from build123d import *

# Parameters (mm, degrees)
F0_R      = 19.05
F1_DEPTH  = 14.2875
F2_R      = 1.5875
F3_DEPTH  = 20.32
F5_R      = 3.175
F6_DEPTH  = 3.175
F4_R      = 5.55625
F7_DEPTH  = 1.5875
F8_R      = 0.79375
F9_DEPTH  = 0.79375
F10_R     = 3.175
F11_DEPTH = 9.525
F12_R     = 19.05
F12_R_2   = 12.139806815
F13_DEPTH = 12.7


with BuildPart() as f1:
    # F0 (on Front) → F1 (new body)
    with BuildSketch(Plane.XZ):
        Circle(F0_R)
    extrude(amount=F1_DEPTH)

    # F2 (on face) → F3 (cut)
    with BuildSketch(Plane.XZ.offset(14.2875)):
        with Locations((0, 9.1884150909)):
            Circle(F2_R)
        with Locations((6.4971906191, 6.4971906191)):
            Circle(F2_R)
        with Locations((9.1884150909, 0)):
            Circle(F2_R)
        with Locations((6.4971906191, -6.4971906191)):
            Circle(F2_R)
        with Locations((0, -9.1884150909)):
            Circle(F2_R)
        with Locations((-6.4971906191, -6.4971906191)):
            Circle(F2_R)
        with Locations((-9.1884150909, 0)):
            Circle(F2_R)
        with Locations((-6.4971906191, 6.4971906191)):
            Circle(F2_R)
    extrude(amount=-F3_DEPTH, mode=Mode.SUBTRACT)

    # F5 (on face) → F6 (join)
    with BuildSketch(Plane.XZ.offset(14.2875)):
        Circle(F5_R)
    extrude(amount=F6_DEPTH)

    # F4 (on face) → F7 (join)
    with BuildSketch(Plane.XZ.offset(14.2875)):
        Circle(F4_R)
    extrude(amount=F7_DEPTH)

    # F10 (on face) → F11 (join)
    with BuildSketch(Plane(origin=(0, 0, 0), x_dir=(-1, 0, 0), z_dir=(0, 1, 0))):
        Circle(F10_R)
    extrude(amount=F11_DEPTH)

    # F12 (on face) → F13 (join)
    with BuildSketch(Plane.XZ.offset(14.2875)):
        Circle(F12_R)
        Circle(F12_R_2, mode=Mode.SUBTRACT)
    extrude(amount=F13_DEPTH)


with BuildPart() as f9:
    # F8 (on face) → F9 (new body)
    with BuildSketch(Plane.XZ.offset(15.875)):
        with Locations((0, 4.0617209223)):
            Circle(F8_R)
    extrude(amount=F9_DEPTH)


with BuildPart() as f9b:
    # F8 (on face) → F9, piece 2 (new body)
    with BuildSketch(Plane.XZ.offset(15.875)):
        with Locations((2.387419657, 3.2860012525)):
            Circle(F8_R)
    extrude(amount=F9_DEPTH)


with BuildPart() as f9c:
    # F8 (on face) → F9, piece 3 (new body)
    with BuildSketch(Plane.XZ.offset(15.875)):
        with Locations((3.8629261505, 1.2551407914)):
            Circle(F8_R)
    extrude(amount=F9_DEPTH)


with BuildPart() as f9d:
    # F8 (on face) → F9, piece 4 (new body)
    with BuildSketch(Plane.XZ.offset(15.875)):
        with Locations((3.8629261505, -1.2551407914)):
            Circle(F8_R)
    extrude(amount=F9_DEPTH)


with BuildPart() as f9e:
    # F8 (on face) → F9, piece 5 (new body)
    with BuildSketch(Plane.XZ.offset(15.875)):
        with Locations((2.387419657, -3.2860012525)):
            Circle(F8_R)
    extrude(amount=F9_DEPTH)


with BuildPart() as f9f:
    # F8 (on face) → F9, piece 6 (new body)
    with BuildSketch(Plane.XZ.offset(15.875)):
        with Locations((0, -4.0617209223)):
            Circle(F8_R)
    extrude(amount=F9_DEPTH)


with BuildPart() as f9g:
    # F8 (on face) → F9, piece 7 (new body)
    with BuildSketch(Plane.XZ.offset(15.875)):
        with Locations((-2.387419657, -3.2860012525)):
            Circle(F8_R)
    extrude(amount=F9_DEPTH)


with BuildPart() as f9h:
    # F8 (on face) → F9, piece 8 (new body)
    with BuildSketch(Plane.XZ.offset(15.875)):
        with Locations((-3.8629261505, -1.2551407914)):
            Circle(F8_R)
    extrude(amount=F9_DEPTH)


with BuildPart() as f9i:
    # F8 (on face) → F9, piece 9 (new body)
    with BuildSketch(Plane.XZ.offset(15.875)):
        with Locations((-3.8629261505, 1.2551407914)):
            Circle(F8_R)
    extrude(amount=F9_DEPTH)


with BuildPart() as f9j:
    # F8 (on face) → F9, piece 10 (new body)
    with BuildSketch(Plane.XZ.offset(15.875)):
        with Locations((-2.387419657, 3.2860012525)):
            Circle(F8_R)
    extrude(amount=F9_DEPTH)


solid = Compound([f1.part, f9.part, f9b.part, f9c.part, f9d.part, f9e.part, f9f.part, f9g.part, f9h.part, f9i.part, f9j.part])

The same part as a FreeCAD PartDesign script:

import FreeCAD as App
import Part
import Sketcher

V = App.Vector
Q = App.Units.Quantity

doc = App.newDocument("Part")
body = doc.addObject("PartDesign::Body", "Body")

# Sketch on XZ plane
sketch1 = body.newObject("Sketcher::SketchObject", "Sketch")
sketch1.AttachmentSupport = (doc.getObject("XZ_Plane"), [""])
sketch1.MapMode = "FlatFace"
sketch1.addGeometry(Part.Circle(V(0, 0, 0), V(0, 0, 1), 19), False)
sketch1.addConstraint([
    Sketcher.Constraint("Coincident", 0, 3, -1, 1),
    Sketcher.Constraint("Diameter", 0, Q("1.5 in")),
])
pad1 = body.newObject("PartDesign::Pad", "Pad")
pad1.Profile = sketch1
pad1.Length = Q("0.5625 in")

# Sketch on XZ plane
sketch2 = body.newObject("Sketcher::SketchObject", "Sketch001")
sketch2.AttachmentSupport = (doc.getObject("XZ_Plane"), [""])
sketch2.MapMode = "FlatFace"
sketch2.AttachmentOffset = App.Placement(V(0, 0, 0.5625 * 25.4), App.Rotation())
sketch2.addGeometry([
    Part.Circle(V(0, 9.2, 0), V(0, 0, 1), 1.6),  # 0
    Part.Circle(V(6.5, 6.5, 0), V(0, 0, 1), 1.6),  # 1
    Part.Circle(V(9.2, 0, 0), V(0, 0, 1), 1.6),  # 2
    Part.Circle(V(6.5, -6.5, 0), V(0, 0, 1), 1.6),  # 3
    Part.Circle(V(0, -9.2, 0), V(0, 0, 1), 1.6),  # 4
    Part.Circle(V(-6.5, -6.5, 0), V(0, 0, 1), 1.6),  # 5
    Part.Circle(V(-9.2, 0, 0), V(0, 0, 1), 1.6),  # 6
    Part.Circle(V(-6.5, 6.5, 0), V(0, 0, 1), 1.6),  # 7
], False)
sketch2.addConstraint([
    Sketcher.Constraint("Equal", 0, 1),
    Sketcher.Constraint("Equal", 1, 2),
    Sketcher.Constraint("Equal", 2, 3),
    Sketcher.Constraint("Equal", 3, 4),
    Sketcher.Constraint("Equal", 4, 5),
    Sketcher.Constraint("Equal", 5, 6),
    Sketcher.Constraint("Equal", 6, 7),
    Sketcher.Constraint("Symmetric", 0, 3, 4, 3, -1, 1),
    Sketcher.Constraint("Symmetric", 1, 3, 5, 3, -1, 1),
    Sketcher.Constraint("Symmetric", 2, 3, 6, 3, -1, 1),
    Sketcher.Constraint("Symmetric", 3, 3, 7, 3, -1, 1),
    Sketcher.Constraint("Symmetric", 3, 3, 5, 3, -2),
    Sketcher.Constraint("PointOnObject", 0, 3, -2),
    Sketcher.Constraint("PointOnObject", 2, 3, -1),
    Sketcher.Constraint("Diameter", 0, Q("0.125 in")),
    Sketcher.Constraint("DistanceX", -1, 1, 1, 3, Q("6.497191 mm")),
    Sketcher.Constraint("DistanceY", -1, 1, 1, 3, Q("6.497191 mm")),
    Sketcher.Constraint("DistanceY", 4, 3, 0, 3, Q("18.37683 mm")),
    Sketcher.Constraint("DistanceX", -1, 1, 2, 3, Q("9.188415 mm")),
])
pocket1 = body.newObject("PartDesign::Pocket", "Pocket")
pocket1.Profile = sketch2
pocket1.Length = Q("0.8 in")

# Sketch on XZ plane
sketch3 = body.newObject("Sketcher::SketchObject", "Sketch002")
sketch3.AttachmentSupport = (doc.getObject("XZ_Plane"), [""])
sketch3.MapMode = "FlatFace"
sketch3.AttachmentOffset = App.Placement(V(0, 0, 0.5625 * 25.4), App.Rotation())
sketch3.addGeometry(Part.Circle(V(0, 0, 0), V(0, 0, 1), 3.2), False)
sketch3.addConstraint([
    Sketcher.Constraint("Coincident", 0, 3, -1, 1),
    Sketcher.Constraint("Diameter", 0, Q("0.25 in")),
])
pad2 = body.newObject("PartDesign::Pad", "Pad001")
pad2.Profile = sketch3
pad2.Length = Q("0.125 in")

# Sketch on XZ plane
sketch4 = body.newObject("Sketcher::SketchObject", "Sketch003")
sketch4.AttachmentSupport = (doc.getObject("XZ_Plane"), [""])
sketch4.MapMode = "FlatFace"
sketch4.AttachmentOffset = App.Placement(V(0, 0, 0.5625 * 25.4), App.Rotation())
sketch4.addGeometry(Part.Circle(V(0, 0, 0), V(0, 0, 1), 6), False)
sketch4.addConstraint([
    Sketcher.Constraint("Coincident", 0, 3, -1, 1),
    Sketcher.Constraint("Diameter", 0, Q("0.4375 in")),
])
pad3 = body.newObject("PartDesign::Pad", "Pad002")
pad3.Profile = sketch4
pad3.Length = Q("0.0625 in")

# Sketch on XZ plane
sketch5 = body.newObject("Sketcher::SketchObject", "Sketch004")
sketch5.AttachmentSupport = (doc.getObject("XZ_Plane"), [""])
sketch5.MapMode = "FlatFace"
sketch5.addGeometry(Part.Circle(V(0, 0, 0), V(0, 0, 1), 3.2), False)
sketch5.addConstraint([
    Sketcher.Constraint("Coincident", 0, 3, -1, 1),
    Sketcher.Constraint("Diameter", 0, Q("0.25 in")),
])
pad4 = body.newObject("PartDesign::Pad", "Pad003")
pad4.Profile = sketch5
pad4.Length = Q("0.375 in")
pad4.Reversed = True

# Sketch on XZ plane
sketch6 = body.newObject("Sketcher::SketchObject", "Sketch005")
sketch6.AttachmentSupport = (doc.getObject("XZ_Plane"), [""])
sketch6.MapMode = "FlatFace"
sketch6.AttachmentOffset = App.Placement(V(0, 0, 0.5625 * 25.4), App.Rotation())
sketch6.addGeometry([
    Part.Circle(V(0, 0, 0), V(0, 0, 1), 19),
    Part.Circle(V(0, 0, 0), V(0, 0, 1), 12),
], False)
sketch6.addConstraint([
    Sketcher.Constraint("Coincident", 0, 3, -1, 1),
    Sketcher.Constraint("Coincident", 1, 3, -1, 1),
    Sketcher.Constraint("Diameter", 0, Q("1.5 in")),
    Sketcher.Constraint("Diameter", 1, Q("24.279614 mm")),
])
pad5 = body.newObject("PartDesign::Pad", "Pad004")
pad5.Profile = sketch6
pad5.Length = Q("0.5 in")
body2 = doc.addObject("PartDesign::Body", "Body001")

# Sketch on XZ plane
sketch7 = body2.newObject("Sketcher::SketchObject", "Sketch006")
sketch7.AttachmentSupport = (doc.getObject("XZ_Plane001"), [""])
sketch7.MapMode = "FlatFace"
sketch7.AttachmentOffset = App.Placement(V(0, 0, 0.625 * 25.4), App.Rotation())
sketch7.addGeometry(Part.Circle(V(0, 4.1, 0), V(0, 0, 1), 0.8), False)
sketch7.addConstraint([
    Sketcher.Constraint("PointOnObject", 0, 3, -2),
    Sketcher.Constraint("Diameter", 0, Q("0.0625 in")),
    Sketcher.Constraint("DistanceY", -1, 1, 0, 3, Q("4.061721 mm")),
])
pad6 = body2.newObject("PartDesign::Pad", "Pad005")
pad6.Profile = sketch7
pad6.Length = Q("0.03125 in")
body3 = doc.addObject("PartDesign::Body", "Body002")

# Sketch on XZ plane
sketch8 = body3.newObject("Sketcher::SketchObject", "Sketch007")
sketch8.AttachmentSupport = (doc.getObject("XZ_Plane002"), [""])
sketch8.MapMode = "FlatFace"
sketch8.AttachmentOffset = App.Placement(V(0, 0, 0.625 * 25.4), App.Rotation())
sketch8.addGeometry(Part.Circle(V(2.4, 3.3, 0), V(0, 0, 1), 0.8), False)
sketch8.addConstraint([
    Sketcher.Constraint("Diameter", 0, Q("0.0625 in")),
    Sketcher.Constraint("DistanceY", -1, 1, 0, 3, Q("3.286001 mm")),
    Sketcher.Constraint("DistanceX", -1, 1, 0, 3, Q("2.38742 mm")),
])
pad7 = body3.newObject("PartDesign::Pad", "Pad006")
pad7.Profile = sketch8
pad7.Length = Q("0.03125 in")
body4 = doc.addObject("PartDesign::Body", "Body003")

# Sketch on XZ plane
sketch9 = body4.newObject("Sketcher::SketchObject", "Sketch008")
sketch9.AttachmentSupport = (doc.getObject("XZ_Plane003"), [""])
sketch9.MapMode = "FlatFace"
sketch9.AttachmentOffset = App.Placement(V(0, 0, 0.625 * 25.4), App.Rotation())
sketch9.addGeometry(Part.Circle(V(3.9, 1.3, 0), V(0, 0, 1), 0.8), False)
sketch9.addConstraint([
    Sketcher.Constraint("Diameter", 0, Q("0.0625 in")),
    Sketcher.Constraint("DistanceY", -1, 1, 0, 3, Q("1.255141 mm")),
    Sketcher.Constraint("DistanceX", -1, 1, 0, 3, Q("3.862926 mm")),
])
pad8 = body4.newObject("PartDesign::Pad", "Pad007")
pad8.Profile = sketch9
pad8.Length = Q("0.03125 in")
body5 = doc.addObject("PartDesign::Body", "Body004")

# Sketch on XZ plane
sketch10 = body5.newObject("Sketcher::SketchObject", "Sketch009")
sketch10.AttachmentSupport = (doc.getObject("XZ_Plane004"), [""])
sketch10.MapMode = "FlatFace"
sketch10.AttachmentOffset = App.Placement(V(0, 0, 0.625 * 25.4), App.Rotation())
sketch10.addGeometry(Part.Circle(V(3.9, -1.3, 0), V(0, 0, 1), 0.8), False)
sketch10.addConstraint([
    Sketcher.Constraint("Diameter", 0, Q("0.0625 in")),
    Sketcher.Constraint("DistanceY", 0, 3, -1, 1, Q("1.255141 mm")),
    Sketcher.Constraint("DistanceX", -1, 1, 0, 3, Q("3.862926 mm")),
])
pad9 = body5.newObject("PartDesign::Pad", "Pad008")
pad9.Profile = sketch10
pad9.Length = Q("0.03125 in")
body6 = doc.addObject("PartDesign::Body", "Body005")

# Sketch on XZ plane
sketch11 = body6.newObject("Sketcher::SketchObject", "Sketch010")
sketch11.AttachmentSupport = (doc.getObject("XZ_Plane005"), [""])
sketch11.MapMode = "FlatFace"
sketch11.AttachmentOffset = App.Placement(V(0, 0, 0.625 * 25.4), App.Rotation())
sketch11.addGeometry(Part.Circle(V(2.4, -3.3, 0), V(0, 0, 1), 0.8), False)
sketch11.addConstraint([
    Sketcher.Constraint("Diameter", 0, Q("0.0625 in")),
    Sketcher.Constraint("DistanceY", 0, 3, -1, 1, Q("3.286001 mm")),
    Sketcher.Constraint("DistanceX", -1, 1, 0, 3, Q("2.38742 mm")),
])
pad10 = body6.newObject("PartDesign::Pad", "Pad009")
pad10.Profile = sketch11
pad10.Length = Q("0.03125 in")
body7 = doc.addObject("PartDesign::Body", "Body006")

# Sketch on XZ plane
sketch12 = body7.newObject("Sketcher::SketchObject", "Sketch011")
sketch12.AttachmentSupport = (doc.getObject("XZ_Plane006"), [""])
sketch12.MapMode = "FlatFace"
sketch12.AttachmentOffset = App.Placement(V(0, 0, 0.625 * 25.4), App.Rotation())
sketch12.addGeometry(Part.Circle(V(0, -4.1, 0), V(0, 0, 1), 0.8), False)
sketch12.addConstraint([
    Sketcher.Constraint("PointOnObject", 0, 3, -2),
    Sketcher.Constraint("Diameter", 0, Q("0.0625 in")),
    Sketcher.Constraint("DistanceY", 0, 3, -1, 1, Q("4.061721 mm")),
])
pad11 = body7.newObject("PartDesign::Pad", "Pad010")
pad11.Profile = sketch12
pad11.Length = Q("0.03125 in")
body8 = doc.addObject("PartDesign::Body", "Body007")

# Sketch on XZ plane
sketch13 = body8.newObject("Sketcher::SketchObject", "Sketch012")
sketch13.AttachmentSupport = (doc.getObject("XZ_Plane007"), [""])
sketch13.MapMode = "FlatFace"
sketch13.AttachmentOffset = App.Placement(V(0, 0, 0.625 * 25.4), App.Rotation())
sketch13.addGeometry(Part.Circle(V(-2.4, -3.3, 0), V(0, 0, 1), 0.8), False)
sketch13.addConstraint([
    Sketcher.Constraint("Diameter", 0, Q("0.0625 in")),
    Sketcher.Constraint("DistanceY", 0, 3, -1, 1, Q("3.286001 mm")),
    Sketcher.Constraint("DistanceX", 0, 3, -1, 1, Q("2.38742 mm")),
])
pad12 = body8.newObject("PartDesign::Pad", "Pad011")
pad12.Profile = sketch13
pad12.Length = Q("0.03125 in")
body9 = doc.addObject("PartDesign::Body", "Body008")

# Sketch on XZ plane
sketch14 = body9.newObject("Sketcher::SketchObject", "Sketch013")
sketch14.AttachmentSupport = (doc.getObject("XZ_Plane008"), [""])
sketch14.MapMode = "FlatFace"
sketch14.AttachmentOffset = App.Placement(V(0, 0, 0.625 * 25.4), App.Rotation())
sketch14.addGeometry(Part.Circle(V(-3.9, -1.3, 0), V(0, 0, 1), 0.8), False)
sketch14.addConstraint([
    Sketcher.Constraint("Diameter", 0, Q("0.0625 in")),
    Sketcher.Constraint("DistanceY", 0, 3, -1, 1, Q("1.255141 mm")),
    Sketcher.Constraint("DistanceX", 0, 3, -1, 1, Q("3.862926 mm")),
])
pad13 = body9.newObject("PartDesign::Pad", "Pad012")
pad13.Profile = sketch14
pad13.Length = Q("0.03125 in")
body10 = doc.addObject("PartDesign::Body", "Body009")

# Sketch on XZ plane
sketch15 = body10.newObject("Sketcher::SketchObject", "Sketch014")
sketch15.AttachmentSupport = (doc.getObject("XZ_Plane009"), [""])
sketch15.MapMode = "FlatFace"
sketch15.AttachmentOffset = App.Placement(V(0, 0, 0.625 * 25.4), App.Rotation())
sketch15.addGeometry(Part.Circle(V(-3.9, 1.3, 0), V(0, 0, 1), 0.8), False)
sketch15.addConstraint([
    Sketcher.Constraint("Diameter", 0, Q("0.0625 in")),
    Sketcher.Constraint("DistanceY", -1, 1, 0, 3, Q("1.255141 mm")),
    Sketcher.Constraint("DistanceX", 0, 3, -1, 1, Q("3.862926 mm")),
])
pad14 = body10.newObject("PartDesign::Pad", "Pad013")
pad14.Profile = sketch15
pad14.Length = Q("0.03125 in")
body11 = doc.addObject("PartDesign::Body", "Body010")

# Sketch on XZ plane
sketch16 = body11.newObject("Sketcher::SketchObject", "Sketch015")
sketch16.AttachmentSupport = (doc.getObject("XZ_Plane010"), [""])
sketch16.MapMode = "FlatFace"
sketch16.AttachmentOffset = App.Placement(V(0, 0, 0.625 * 25.4), App.Rotation())
sketch16.addGeometry(Part.Circle(V(-2.4, 3.3, 0), V(0, 0, 1), 0.8), False)
sketch16.addConstraint([
    Sketcher.Constraint("Diameter", 0, Q("0.0625 in")),
    Sketcher.Constraint("DistanceY", -1, 1, 0, 3, Q("3.286001 mm")),
    Sketcher.Constraint("DistanceX", 0, 3, -1, 1, Q("2.38742 mm")),
])
pad15 = body11.newObject("PartDesign::Pad", "Pad014")
pad15.Profile = sketch16
pad15.Length = Q("0.03125 in")

doc.recompute()
